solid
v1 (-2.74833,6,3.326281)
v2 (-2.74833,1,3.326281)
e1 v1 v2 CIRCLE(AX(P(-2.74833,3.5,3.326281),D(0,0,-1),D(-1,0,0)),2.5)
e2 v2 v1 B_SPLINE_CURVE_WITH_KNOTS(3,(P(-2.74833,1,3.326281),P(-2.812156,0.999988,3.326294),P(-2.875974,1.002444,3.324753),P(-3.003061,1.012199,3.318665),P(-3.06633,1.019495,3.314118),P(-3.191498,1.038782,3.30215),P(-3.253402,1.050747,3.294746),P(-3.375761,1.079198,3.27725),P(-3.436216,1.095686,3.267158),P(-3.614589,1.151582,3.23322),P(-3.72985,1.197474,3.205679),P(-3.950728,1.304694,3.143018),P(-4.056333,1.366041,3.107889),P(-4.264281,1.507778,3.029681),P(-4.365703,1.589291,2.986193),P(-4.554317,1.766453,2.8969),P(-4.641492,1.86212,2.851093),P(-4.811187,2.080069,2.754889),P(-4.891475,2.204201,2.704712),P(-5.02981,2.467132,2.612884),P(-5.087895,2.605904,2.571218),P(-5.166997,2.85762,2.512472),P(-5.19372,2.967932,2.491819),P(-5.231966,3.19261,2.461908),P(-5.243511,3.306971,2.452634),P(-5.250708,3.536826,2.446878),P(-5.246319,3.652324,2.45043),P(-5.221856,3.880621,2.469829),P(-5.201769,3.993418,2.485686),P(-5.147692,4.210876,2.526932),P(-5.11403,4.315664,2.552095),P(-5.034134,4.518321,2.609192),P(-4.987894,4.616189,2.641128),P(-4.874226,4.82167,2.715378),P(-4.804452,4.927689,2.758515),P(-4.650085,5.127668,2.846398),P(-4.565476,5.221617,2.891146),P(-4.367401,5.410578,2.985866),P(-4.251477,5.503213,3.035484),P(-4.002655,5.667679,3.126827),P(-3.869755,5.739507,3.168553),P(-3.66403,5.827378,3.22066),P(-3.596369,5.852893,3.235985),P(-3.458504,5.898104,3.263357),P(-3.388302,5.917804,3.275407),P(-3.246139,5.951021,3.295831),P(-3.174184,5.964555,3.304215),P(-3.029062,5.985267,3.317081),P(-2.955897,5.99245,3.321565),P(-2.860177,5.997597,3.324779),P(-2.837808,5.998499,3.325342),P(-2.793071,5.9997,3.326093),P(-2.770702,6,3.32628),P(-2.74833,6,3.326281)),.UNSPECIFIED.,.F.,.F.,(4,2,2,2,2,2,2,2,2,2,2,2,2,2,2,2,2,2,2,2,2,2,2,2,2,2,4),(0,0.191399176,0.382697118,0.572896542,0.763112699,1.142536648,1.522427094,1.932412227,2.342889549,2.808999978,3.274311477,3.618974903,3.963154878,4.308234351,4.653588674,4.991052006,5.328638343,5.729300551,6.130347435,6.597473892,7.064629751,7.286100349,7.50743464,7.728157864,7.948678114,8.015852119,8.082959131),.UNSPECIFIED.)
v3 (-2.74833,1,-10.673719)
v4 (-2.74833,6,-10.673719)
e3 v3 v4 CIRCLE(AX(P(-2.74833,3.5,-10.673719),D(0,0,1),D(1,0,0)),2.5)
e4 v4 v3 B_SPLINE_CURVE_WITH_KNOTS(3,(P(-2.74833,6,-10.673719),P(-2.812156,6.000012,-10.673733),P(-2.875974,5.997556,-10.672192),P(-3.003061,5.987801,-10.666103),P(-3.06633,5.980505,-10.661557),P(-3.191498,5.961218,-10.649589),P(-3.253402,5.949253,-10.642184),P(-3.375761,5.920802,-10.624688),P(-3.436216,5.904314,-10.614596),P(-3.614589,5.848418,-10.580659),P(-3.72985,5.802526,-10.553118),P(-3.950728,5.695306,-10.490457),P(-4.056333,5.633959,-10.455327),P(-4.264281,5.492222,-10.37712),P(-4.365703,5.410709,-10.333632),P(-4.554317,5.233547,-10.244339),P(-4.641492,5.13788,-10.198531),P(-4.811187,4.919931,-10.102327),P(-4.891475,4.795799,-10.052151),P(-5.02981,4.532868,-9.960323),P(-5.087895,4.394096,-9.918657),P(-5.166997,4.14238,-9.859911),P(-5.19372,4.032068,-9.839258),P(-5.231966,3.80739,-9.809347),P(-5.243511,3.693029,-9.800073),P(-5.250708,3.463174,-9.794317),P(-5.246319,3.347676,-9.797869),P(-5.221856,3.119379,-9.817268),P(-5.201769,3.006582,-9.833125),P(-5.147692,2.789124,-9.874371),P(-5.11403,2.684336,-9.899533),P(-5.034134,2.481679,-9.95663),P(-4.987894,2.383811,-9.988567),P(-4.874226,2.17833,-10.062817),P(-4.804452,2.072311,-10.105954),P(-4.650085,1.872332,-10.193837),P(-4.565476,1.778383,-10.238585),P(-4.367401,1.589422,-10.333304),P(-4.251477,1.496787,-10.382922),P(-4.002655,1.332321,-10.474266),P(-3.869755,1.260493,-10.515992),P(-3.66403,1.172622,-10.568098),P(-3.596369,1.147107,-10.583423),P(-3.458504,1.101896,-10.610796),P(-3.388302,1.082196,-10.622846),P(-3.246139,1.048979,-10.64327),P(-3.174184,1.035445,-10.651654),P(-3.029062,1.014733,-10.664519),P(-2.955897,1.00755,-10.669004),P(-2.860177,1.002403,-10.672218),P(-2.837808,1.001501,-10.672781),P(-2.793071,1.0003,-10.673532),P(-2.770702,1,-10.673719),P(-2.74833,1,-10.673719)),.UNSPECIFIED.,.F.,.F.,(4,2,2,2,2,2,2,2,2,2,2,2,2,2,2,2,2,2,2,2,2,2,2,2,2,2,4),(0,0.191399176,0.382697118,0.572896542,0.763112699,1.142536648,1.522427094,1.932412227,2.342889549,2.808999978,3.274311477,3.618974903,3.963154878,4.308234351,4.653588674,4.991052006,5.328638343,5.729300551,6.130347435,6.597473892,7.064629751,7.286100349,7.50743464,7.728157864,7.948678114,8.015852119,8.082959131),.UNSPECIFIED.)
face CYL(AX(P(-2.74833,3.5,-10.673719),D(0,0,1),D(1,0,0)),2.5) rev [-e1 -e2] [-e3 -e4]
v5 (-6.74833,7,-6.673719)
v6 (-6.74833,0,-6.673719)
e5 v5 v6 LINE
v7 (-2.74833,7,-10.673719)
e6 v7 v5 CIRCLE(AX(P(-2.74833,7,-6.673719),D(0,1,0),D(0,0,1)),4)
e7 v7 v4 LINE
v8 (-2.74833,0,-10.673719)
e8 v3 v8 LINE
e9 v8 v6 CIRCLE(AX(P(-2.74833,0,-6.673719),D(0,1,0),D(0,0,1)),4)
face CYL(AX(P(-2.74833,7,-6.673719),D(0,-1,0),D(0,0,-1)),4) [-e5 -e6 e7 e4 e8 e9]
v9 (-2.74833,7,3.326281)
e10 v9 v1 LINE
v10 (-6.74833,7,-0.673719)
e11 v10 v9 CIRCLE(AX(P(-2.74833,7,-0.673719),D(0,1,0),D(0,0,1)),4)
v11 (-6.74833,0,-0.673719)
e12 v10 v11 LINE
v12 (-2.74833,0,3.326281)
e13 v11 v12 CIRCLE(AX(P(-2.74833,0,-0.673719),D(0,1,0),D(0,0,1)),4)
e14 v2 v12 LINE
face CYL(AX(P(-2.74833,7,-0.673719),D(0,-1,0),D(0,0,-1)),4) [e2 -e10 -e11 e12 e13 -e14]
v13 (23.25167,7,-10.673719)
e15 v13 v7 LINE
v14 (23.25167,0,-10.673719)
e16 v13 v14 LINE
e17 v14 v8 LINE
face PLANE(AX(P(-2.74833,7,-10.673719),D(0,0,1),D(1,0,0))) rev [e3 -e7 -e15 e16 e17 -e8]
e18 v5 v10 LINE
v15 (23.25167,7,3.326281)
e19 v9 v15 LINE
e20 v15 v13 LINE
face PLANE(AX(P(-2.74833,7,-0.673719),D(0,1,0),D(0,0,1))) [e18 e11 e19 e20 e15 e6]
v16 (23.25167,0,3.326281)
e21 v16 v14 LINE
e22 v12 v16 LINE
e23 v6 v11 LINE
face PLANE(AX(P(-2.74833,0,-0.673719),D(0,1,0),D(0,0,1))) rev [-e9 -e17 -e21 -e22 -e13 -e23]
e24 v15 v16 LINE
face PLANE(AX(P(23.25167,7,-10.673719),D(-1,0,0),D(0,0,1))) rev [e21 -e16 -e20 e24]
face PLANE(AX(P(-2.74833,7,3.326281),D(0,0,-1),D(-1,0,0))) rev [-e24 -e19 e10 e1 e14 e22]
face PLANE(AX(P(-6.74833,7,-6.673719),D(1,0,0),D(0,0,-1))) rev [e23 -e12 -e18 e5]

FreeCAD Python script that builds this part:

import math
import FreeCAD as App
import Part
import Sketcher

V = App.Vector
Q = App.Units.Quantity

doc = App.newDocument("Part")
body = doc.addObject("PartDesign::Body", "Body")

# Sketch on XZ plane
sketch1 = doc.addObject("Sketcher::SketchObject", "Sketch")
body.addObject(sketch1)
sketch1.AttachmentSupport = (doc.XZ_Plane, [""])
sketch1.MapMode = "FlatFace"
sketch1.addGeometry(Part.LineSegment(V(23.25167, -10.673719, 0), V(-2.74833, -10.673719, 0)), False)
sketch1.addGeometry(Part.ArcOfCircle(Part.Circle(V(-2.74833, -6.673719, 0), V(0, 0, 1), 4), math.radians(180), math.radians(270)), False)
sketch1.addGeometry(Part.LineSegment(V(-6.74833, -6.673719, 0), V(-6.74833, -0.673719, 0)), False)
sketch1.addGeometry(Part.ArcOfCircle(Part.Circle(V(-2.74833, -0.673719, 0), V(0, 0, 1), 4), math.radians(90), math.radians(180)), False)
sketch1.addGeometry(Part.LineSegment(V(-2.74833, 3.326281, 0), V(23.25167, 3.326281, 0)), False)
sketch1.addGeometry(Part.LineSegment(V(23.25167, 3.326281, 0), V(23.25167, -10.673719, 0)), False)
sketch1.addConstraint(Sketcher.Constraint("Tangent", 0, 2, 1, 2))
sketch1.addConstraint(Sketcher.Constraint("Tangent", 1, 1, 2, 1))
sketch1.addConstraint(Sketcher.Constraint("Tangent", 2, 2, 3, 2))
sketch1.addConstraint(Sketcher.Constraint("Tangent", 3, 1, 4, 1))
sketch1.addConstraint(Sketcher.Constraint("Coincident", 4, 2, 5, 1))
sketch1.addConstraint(Sketcher.Constraint("Coincident", 5, 2, 0, 1))
sketch1.addConstraint(Sketcher.Constraint("Horizontal", 0))
sketch1.addConstraint(Sketcher.Constraint("Vertical", 2))
sketch1.addConstraint(Sketcher.Constraint("Horizontal", 4))
sketch1.addConstraint(Sketcher.Constraint("Vertical", 5))
sketch1.addConstraint(Sketcher.Constraint("Equal", 1, 3))
sketch1.addConstraint(Sketcher.Constraint("Radius", 1, Q("4 mm")))
sketch1.addConstraint(Sketcher.Constraint("DistanceX", 0, 2, 0, 1, Q("26 mm")))
sketch1.addConstraint(Sketcher.Constraint("DistanceY", 2, 1, 2, 2, Q("6 mm")))
sketch1.addConstraint(Sketcher.Constraint("DistanceX", 1, 3, -1, 1, Q("2.74833 mm")))
sketch1.addConstraint(Sketcher.Constraint("DistanceY", 1, 3, -1, 1, Q("6.673719 mm")))
pad1 = doc.addObject("PartDesign::Pad", "Pad")
body.addObject(pad1)
pad1.Profile = sketch1
pad1.Length = 7
pad1.Reversed = True

# Sketch on XY plane
sketch2 = doc.addObject("Sketcher::SketchObject", "Sketch001")
body.addObject(sketch2)
sketch2.AttachmentSupport = (doc.XY_Plane, [""])
sketch2.MapMode = "FlatFace"
sketch2.AttachmentOffset = App.Placement(V(0, 0, 3.326281), App.Rotation())
sketch2.addGeometry(Part.Circle(V(-2.74833, 3.5, 0), V(0, 0, 1), 2.5), False)
sketch2.addConstraint(Sketcher.Constraint("Diameter", 0, Q("5 mm")))
sketch2.addConstraint(Sketcher.Constraint("DistanceY", -1, 1, 0, 3, Q("3.5 mm")))
sketch2.addConstraint(Sketcher.Constraint("DistanceX", 0, 3, -1, 1, Q("2.74833 mm")))
pocket1 = doc.addObject("PartDesign::Pocket", "Pocket")
body.addObject(pocket1)
pocket1.Profile = sketch2
pocket1.Length = 14

doc.recompute()
